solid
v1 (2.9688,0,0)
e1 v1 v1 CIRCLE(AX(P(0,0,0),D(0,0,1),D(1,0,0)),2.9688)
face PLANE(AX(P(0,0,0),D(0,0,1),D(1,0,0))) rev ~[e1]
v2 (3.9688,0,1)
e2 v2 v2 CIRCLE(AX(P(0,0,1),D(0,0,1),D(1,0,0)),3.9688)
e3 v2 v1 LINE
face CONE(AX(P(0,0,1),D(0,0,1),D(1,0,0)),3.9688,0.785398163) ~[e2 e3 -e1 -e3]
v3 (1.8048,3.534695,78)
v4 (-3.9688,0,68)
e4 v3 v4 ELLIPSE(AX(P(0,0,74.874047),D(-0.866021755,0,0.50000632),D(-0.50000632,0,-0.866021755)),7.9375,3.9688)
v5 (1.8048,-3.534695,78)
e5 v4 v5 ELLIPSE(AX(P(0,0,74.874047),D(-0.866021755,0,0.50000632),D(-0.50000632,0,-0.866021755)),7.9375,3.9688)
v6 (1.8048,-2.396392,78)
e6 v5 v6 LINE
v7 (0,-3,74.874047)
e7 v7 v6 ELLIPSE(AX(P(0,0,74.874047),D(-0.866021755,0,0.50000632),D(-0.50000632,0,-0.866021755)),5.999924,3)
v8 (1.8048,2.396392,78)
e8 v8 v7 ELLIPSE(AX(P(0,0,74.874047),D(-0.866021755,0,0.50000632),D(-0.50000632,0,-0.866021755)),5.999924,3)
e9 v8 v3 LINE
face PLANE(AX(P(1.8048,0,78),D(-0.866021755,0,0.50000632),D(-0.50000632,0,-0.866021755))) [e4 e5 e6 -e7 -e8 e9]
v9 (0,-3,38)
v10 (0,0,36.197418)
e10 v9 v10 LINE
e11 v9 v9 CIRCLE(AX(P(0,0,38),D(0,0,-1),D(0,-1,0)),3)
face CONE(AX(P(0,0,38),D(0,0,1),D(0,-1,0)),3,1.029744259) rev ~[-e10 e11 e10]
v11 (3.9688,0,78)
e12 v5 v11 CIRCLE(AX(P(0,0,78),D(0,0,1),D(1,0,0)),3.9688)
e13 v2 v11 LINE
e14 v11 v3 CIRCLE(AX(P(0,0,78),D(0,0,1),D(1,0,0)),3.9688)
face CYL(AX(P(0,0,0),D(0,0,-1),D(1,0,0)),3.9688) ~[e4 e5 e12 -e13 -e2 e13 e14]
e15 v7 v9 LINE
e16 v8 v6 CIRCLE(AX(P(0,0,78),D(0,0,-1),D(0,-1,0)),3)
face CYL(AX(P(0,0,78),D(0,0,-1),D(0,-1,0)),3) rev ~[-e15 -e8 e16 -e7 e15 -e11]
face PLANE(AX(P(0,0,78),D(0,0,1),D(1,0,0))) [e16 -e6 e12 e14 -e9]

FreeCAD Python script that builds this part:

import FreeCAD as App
import Part
import Sketcher
Q = App.Units.Quantity


def edges_at(feature, points):
    """Names of the edges that pass closest to the given points."""
    edges = feature.Shape.Edges
    near = lambda p: min(range(len(edges)), key=lambda i: edges[i].distToShape(Part.Vertex(*p))[0])
    return sorted({f"Edge{near(p) + 1}" for p in points})

doc = App.newDocument("Part")
body = doc.addObject("PartDesign::Body", "Body")

sketch1 = doc.addObject("Sketcher::SketchObject", "Sketch")
body.addObject(sketch1)
sketch1.AttachmentSupport = (doc.XY_Plane, [""])
sketch1.MapMode = "FlatFace"
sketch1.addGeometry(Part.Circle(App.Vector(0, 0, 0), App.Vector(0, 0, 1), 3.9688), False)
sketch1.addConstraint(Sketcher.Constraint("Coincident", 0, 3, -1, 1))
sketch1.addConstraint(Sketcher.Constraint("Diameter", 0, 7.9376))
pad1 = doc.addObject("PartDesign::Pad", "Pad")
body.addObject(pad1)
pad1.Profile = sketch1
pad1.Length = 78

sketch2 = doc.addObject("Sketcher::SketchObject", "Sketch001")
body.addObject(sketch2)
sketch2.AttachmentSupport = (doc.XY_Plane, [""])
sketch2.MapMode = "FlatFace"
sketch2.AttachmentOffset = App.Placement(App.Vector(0, 0, 78), App.Rotation())
sketch2.addGeometry(Part.Circle(App.Vector(0, 0, 0), App.Vector(0, 0, 1), 3), False)
sketch2.addConstraint(Sketcher.Constraint("Coincident", 0, 3, -1, 1))
sketch2.addConstraint(Sketcher.Constraint("Diameter", 0, 6.0))
doc.recompute()
hole = doc.addObject("PartDesign::Hole", "Hole")
body.addObject(hole)
hole.Profile = sketch2
hole.ThreadType = "None"
hole.Diameter = 6
hole.DepthType = "Dimension"
hole.Depth = 40
hole.DrillPoint = "Angled"
hole.DrillPointAngle = 118

sketch3 = doc.addObject("Sketcher::SketchObject", "Sketch002")
body.addObject(sketch3)
sketch3.AttachmentSupport = (doc.XZ_Plane, [""])
sketch3.MapMode = "FlatFace"
sketch3.addGeometry(Part.LineSegment(App.Vector(-3.9688, 78, 0), App.Vector(1.8048, 78, 0)), False)
sketch3.addGeometry(Part.LineSegment(App.Vector(1.8048, 78, 0), App.Vector(-3.9688, 68, 0)), False)
sketch3.addGeometry(Part.LineSegment(App.Vector(-3.9688, 68, 0), App.Vector(-3.9688, 78, 0)), False)
sketch3.addConstraint(Sketcher.Constraint("Coincident", 0, 2, 1, 1))
sketch3.addConstraint(Sketcher.Constraint("Coincident", 1, 2, 2, 1))
sketch3.addConstraint(Sketcher.Constraint("Coincident", 2, 2, 0, 1))
sketch3.addConstraint(Sketcher.Constraint("Horizontal", 0))
sketch3.addConstraint(Sketcher.Constraint("Vertical", 2))
sketch3.addConstraint(Sketcher.Constraint("DistanceY", 2, 1, 2, 2, 10.0))
sketch3.addConstraint(Sketcher.Constraint("Angle", 1, Q("-120.0004 deg")))
sketch3.addConstraint(Sketcher.Constraint("DistanceY", -1, 1, 0, 2, 78.0))
sketch3.addConstraint(Sketcher.Constraint("DistanceX", -1, 1, 0, 2, 1.8048))
pocket1 = doc.addObject("PartDesign::Pocket", "Pocket")
body.addObject(pocket1)
pocket1.Profile = sketch3
pocket1.Length = 20
pocket1.Midplane = True
doc.recompute()

chamfer = doc.addObject("PartDesign::Chamfer", "Chamfer")
body.addObject(chamfer)
chamfer.Base = (pocket1, edges_at(pocket1, [(-3.969, 0, 0)]))
chamfer.Size = 1

doc.recompute()
